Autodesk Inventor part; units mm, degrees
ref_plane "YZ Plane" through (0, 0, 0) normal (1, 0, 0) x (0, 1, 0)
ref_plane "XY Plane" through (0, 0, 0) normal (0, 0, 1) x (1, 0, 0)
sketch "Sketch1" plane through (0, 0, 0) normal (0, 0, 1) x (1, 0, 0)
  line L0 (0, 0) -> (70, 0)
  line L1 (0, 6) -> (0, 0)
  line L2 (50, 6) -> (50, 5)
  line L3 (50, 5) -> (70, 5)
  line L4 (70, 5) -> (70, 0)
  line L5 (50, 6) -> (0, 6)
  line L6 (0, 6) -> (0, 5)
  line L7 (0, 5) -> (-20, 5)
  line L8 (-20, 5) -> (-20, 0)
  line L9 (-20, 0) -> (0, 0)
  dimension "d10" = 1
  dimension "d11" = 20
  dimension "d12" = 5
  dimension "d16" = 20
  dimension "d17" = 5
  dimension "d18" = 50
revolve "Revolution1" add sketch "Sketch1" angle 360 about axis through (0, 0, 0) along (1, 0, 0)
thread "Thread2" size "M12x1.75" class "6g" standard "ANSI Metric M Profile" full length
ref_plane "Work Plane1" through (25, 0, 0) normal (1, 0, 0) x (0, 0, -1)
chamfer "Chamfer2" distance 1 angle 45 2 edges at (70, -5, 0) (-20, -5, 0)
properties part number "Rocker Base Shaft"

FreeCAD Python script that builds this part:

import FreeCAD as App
import Part
import Sketcher
from FreeCAD import Vector


def edges_at(feature, points):
    """Names of the edges that pass closest to the given points."""
    edges = feature.Shape.Edges
    near = lambda p: min(range(len(edges)), key=lambda i: edges[i].distToShape(Part.Vertex(*p))[0])
    return sorted({f"Edge{near(p) + 1}" for p in points})


def add_polygon(sketch, points):
    """Adds a closed chain of lines whose ends are joined by coincident constraints."""
    first, n = sketch.GeometryCount, len(points)
    for a, b in zip(points, points[1:] + points[:1]):
        sketch.addGeometry(Part.LineSegment(App.Vector(*a, 0), App.Vector(*b, 0)), False)
    for i in range(n):
        sketch.addConstraint(Sketcher.Constraint("Coincident", first + i, 2, first + (i + 1) % n, 1))

doc = App.newDocument("Part")
body = doc.addObject("PartDesign::Body", "Body")

# Sketch on XY plane
sketch1 = body.newObject("Sketcher::SketchObject", "Sketch")
sketch1.AttachmentSupport = (doc.getObject("XY_Plane"), [""])
sketch1.MapMode = "FlatFace"
add_polygon(sketch1, [(0, 6), (0, 5), (-20, 5), (-20, 0), (70, 0), (70, 5), (50, 5), (50, 6)])  # lines 0-7
sketch1.addConstraint([
    Sketcher.Constraint("Vertical", 0),
    Sketcher.Constraint("Horizontal", 1),
    Sketcher.Constraint("Vertical", 2),
    Sketcher.Constraint("Horizontal", 3),
    Sketcher.Constraint("Vertical", 4),
    Sketcher.Constraint("Horizontal", 5),
    Sketcher.Constraint("Vertical", 6),
    Sketcher.Constraint("Horizontal", 7),
    Sketcher.Constraint("PointOnObject", 0, 2, -2),
    Sketcher.Constraint("PointOnObject", 2, 2, -1),
    Sketcher.Constraint("Horizontal", 1, 2, 4, 2),
    Sketcher.Constraint("Equal", 1, 5),
    Sketcher.Constraint("DistanceX", 1, 2, 1, 1, 20.0),
    Sketcher.Constraint("DistanceX", 7, 2, 7, 1, 50.0),
    Sketcher.Constraint("DistanceY", 0, 2, 0, 1, 1.0),
    Sketcher.Constraint("DistanceY", 2, 2, 2, 1, 5.0),
])
revolution = body.newObject("PartDesign::Revolution", "Revolution")
revolution.Profile = sketch1
revolution.ReferenceAxis = (sketch1, ["H_Axis"])
revolution.Angle = 360
doc.recompute()

chamfer = body.newObject("PartDesign::Chamfer", "Chamfer")
chamfer.Base = (revolution, edges_at(revolution, [(70, -5, 0), (-20, -5, 0)]))
chamfer.Size = 1

doc.recompute()
